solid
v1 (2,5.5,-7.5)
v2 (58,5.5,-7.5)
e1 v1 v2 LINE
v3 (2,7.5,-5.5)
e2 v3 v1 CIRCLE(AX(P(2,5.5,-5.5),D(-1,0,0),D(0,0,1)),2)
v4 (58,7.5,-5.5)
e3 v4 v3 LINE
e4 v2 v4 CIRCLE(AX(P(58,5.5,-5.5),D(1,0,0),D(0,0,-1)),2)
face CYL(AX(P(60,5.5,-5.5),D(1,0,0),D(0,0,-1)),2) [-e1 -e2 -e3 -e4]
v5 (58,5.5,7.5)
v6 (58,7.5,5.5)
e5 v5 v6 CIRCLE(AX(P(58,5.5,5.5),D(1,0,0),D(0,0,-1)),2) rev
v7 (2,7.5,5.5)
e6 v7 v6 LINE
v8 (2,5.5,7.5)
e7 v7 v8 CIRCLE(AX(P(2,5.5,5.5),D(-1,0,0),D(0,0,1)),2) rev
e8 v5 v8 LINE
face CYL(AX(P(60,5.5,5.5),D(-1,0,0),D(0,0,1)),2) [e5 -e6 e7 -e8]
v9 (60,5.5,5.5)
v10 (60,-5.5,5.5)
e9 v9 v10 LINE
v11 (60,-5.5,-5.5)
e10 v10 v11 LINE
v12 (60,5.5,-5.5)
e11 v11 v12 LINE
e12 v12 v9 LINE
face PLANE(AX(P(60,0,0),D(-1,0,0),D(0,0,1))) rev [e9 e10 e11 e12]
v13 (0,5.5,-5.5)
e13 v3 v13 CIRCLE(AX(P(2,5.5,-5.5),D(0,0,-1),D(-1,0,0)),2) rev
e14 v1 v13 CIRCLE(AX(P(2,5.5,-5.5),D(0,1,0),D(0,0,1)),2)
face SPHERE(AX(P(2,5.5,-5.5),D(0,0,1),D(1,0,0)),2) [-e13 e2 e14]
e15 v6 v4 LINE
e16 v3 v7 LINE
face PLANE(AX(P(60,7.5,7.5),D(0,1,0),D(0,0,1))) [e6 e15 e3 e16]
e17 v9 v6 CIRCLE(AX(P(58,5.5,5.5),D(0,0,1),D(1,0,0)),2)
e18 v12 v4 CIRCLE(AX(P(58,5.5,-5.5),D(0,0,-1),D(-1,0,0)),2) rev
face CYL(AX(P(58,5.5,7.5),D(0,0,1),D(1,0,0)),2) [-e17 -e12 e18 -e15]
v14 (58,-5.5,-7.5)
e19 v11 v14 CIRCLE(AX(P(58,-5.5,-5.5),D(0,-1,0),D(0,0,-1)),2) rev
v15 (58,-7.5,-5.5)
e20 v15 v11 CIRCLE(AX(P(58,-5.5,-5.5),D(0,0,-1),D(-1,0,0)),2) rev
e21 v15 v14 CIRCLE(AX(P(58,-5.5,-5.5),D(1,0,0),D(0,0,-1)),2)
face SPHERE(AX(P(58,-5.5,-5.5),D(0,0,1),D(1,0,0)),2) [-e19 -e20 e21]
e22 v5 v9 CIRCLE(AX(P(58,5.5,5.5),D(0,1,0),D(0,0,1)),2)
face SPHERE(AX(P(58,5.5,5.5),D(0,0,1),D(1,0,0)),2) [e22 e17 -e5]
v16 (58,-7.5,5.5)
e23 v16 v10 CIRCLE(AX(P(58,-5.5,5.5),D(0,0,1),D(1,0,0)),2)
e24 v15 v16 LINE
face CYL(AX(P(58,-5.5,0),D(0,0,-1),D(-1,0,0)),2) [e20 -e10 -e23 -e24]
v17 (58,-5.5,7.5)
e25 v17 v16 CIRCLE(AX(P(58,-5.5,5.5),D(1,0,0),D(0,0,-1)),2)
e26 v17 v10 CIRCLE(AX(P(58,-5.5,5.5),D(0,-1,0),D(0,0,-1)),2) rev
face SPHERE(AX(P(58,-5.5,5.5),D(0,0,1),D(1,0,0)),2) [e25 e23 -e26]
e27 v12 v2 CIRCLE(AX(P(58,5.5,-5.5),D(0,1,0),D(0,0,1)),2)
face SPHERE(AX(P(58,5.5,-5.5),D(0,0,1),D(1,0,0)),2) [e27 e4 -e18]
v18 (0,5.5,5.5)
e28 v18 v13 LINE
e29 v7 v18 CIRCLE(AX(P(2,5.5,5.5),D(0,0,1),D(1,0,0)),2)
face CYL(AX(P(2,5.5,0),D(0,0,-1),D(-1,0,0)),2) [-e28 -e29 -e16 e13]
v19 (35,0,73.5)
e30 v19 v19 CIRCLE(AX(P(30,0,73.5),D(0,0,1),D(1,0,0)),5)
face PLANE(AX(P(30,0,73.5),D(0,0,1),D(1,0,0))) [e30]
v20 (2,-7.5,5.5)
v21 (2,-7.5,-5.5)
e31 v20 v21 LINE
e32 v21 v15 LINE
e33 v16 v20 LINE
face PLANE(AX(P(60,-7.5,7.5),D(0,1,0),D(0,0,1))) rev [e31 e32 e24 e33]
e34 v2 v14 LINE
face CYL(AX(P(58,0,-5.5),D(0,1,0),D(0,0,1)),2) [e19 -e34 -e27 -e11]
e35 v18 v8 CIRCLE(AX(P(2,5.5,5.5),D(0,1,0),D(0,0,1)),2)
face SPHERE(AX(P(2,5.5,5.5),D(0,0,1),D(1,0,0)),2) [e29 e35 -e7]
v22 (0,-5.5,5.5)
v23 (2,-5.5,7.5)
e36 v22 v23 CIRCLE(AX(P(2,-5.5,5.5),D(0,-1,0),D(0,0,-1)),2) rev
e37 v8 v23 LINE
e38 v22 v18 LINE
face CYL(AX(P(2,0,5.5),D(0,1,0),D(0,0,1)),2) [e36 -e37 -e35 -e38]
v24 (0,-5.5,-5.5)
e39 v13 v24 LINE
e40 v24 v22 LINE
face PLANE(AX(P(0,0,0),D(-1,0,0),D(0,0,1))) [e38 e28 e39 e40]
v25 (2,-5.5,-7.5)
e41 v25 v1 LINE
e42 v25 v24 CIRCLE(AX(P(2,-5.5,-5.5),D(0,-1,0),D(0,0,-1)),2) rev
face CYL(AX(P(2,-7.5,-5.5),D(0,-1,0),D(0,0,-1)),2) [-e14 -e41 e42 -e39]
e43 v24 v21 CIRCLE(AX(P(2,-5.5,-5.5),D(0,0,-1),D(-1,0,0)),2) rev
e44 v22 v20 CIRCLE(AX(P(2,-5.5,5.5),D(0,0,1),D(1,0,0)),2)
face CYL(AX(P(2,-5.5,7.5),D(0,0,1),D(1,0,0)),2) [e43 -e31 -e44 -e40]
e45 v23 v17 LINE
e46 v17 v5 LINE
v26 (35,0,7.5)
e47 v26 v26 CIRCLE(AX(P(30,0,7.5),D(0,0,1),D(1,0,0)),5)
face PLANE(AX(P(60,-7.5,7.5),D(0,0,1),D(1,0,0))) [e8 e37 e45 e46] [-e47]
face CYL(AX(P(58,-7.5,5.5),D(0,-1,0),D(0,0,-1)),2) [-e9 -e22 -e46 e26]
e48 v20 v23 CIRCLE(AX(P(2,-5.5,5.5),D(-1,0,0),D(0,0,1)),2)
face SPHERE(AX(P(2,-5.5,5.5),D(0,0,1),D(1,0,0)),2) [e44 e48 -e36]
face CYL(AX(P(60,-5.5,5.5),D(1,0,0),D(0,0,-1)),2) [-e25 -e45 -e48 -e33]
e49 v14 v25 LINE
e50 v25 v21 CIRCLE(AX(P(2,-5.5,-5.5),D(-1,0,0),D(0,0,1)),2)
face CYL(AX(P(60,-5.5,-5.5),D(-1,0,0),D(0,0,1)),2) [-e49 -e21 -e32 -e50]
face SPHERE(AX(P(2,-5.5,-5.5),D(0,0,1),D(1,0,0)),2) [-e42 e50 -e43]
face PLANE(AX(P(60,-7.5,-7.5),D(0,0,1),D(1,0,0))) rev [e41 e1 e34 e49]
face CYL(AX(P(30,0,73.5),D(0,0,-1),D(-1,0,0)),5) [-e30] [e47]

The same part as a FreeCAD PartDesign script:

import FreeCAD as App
import Part
import Sketcher

V = App.Vector
Q = App.Units.Quantity


def edges_at(feature, points):
    """Names of the edges that pass closest to the given points."""
    edges = feature.Shape.Edges
    near = lambda p: min(range(len(edges)), key=lambda i: edges[i].distToShape(Part.Vertex(*p))[0])
    return sorted({f"Edge{near(p) + 1}" for p in points})


def add_polygon(sketch, points):
    """Adds a closed chain of lines whose ends are joined by coincident constraints."""
    first, n = sketch.GeometryCount, len(points)
    for a, b in zip(points, points[1:] + points[:1]):
        sketch.addGeometry(Part.LineSegment(App.Vector(*a, 0), App.Vector(*b, 0)), False)
    for i in range(n):
        sketch.addConstraint(Sketcher.Constraint("Coincident", first + i, 2, first + (i + 1) % n, 1))

doc = App.newDocument("Part")
body = doc.addObject("PartDesign::Body", "Body")

# Sketch on YZ plane
sketch1 = body.newObject("Sketcher::SketchObject", "Sketch")
sketch1.AttachmentSupport = (doc.getObject("YZ_Plane"), [""])
sketch1.MapMode = "FlatFace"
add_polygon(sketch1, [(8, 8), (-8, 8), (-8, -8), (8, -8)])  # lines 0-3
sketch1.addConstraint(Sketcher.Constraint("Horizontal", 0))
sketch1.addConstraint(Sketcher.Constraint("Vertical", 1))
sketch1.addConstraint(Sketcher.Constraint("Horizontal", 2))
sketch1.addConstraint(Sketcher.Constraint("Vertical", 3))
sketch1.addConstraint(Sketcher.Constraint("Symmetric", 0, 2, 2, 2, -1, 1))
sketch1.addConstraint(Sketcher.Constraint("Equal", 2, 1))
sketch1.addConstraint(Sketcher.Constraint("DistanceX", 0, 2, 0, 1, Q("15 mm")))
pad1 = body.newObject("PartDesign::Pad", "Pad")
pad1.Profile = sketch1
pad1.Length = 60

# Sketch on XY plane
sketch2 = body.newObject("Sketcher::SketchObject", "Sketch001")
sketch2.AttachmentSupport = (doc.getObject("XY_Plane"), [""])
sketch2.MapMode = "FlatFace"
sketch2.AttachmentOffset = App.Placement(V(0, 0, 7.5), App.Rotation())
sketch2.addGeometry(Part.Circle(V(30, 0, 0), V(0, 0, 1), 5), False)
sketch2.addConstraint(Sketcher.Constraint("PointOnObject", 0, 3, -1))
sketch2.addConstraint(Sketcher.Constraint("Diameter", 0, Q("10 mm")))
sketch2.addConstraint(Sketcher.Constraint("DistanceX", -1, 1, 0, 3, Q("30 mm")))
pad2 = body.newObject("PartDesign::Pad", "Pad001")
pad2.Profile = sketch2
pad2.Length = 66
doc.recompute()

fillet = body.newObject("PartDesign::Fillet", "Fillet")
fillet.Base = (pad2, edges_at(pad2, [
    (60, 0, -7.5),
    (60, -7.5, 0),
    (60, 0, 7.5),
    (0, -7.5, 0),
    (0, 0, -7.5),
    (0, 7.5, 0),
    (0, 0, 7.5),
    (60, 7.5, 0),
    (30, -7.5, 7.5),
    (30, -7.5, -7.5),
    (30, 7.5, -7.5),
    (30, 7.5, 7.5),
]))
fillet.Radius = 2

doc.recompute()
